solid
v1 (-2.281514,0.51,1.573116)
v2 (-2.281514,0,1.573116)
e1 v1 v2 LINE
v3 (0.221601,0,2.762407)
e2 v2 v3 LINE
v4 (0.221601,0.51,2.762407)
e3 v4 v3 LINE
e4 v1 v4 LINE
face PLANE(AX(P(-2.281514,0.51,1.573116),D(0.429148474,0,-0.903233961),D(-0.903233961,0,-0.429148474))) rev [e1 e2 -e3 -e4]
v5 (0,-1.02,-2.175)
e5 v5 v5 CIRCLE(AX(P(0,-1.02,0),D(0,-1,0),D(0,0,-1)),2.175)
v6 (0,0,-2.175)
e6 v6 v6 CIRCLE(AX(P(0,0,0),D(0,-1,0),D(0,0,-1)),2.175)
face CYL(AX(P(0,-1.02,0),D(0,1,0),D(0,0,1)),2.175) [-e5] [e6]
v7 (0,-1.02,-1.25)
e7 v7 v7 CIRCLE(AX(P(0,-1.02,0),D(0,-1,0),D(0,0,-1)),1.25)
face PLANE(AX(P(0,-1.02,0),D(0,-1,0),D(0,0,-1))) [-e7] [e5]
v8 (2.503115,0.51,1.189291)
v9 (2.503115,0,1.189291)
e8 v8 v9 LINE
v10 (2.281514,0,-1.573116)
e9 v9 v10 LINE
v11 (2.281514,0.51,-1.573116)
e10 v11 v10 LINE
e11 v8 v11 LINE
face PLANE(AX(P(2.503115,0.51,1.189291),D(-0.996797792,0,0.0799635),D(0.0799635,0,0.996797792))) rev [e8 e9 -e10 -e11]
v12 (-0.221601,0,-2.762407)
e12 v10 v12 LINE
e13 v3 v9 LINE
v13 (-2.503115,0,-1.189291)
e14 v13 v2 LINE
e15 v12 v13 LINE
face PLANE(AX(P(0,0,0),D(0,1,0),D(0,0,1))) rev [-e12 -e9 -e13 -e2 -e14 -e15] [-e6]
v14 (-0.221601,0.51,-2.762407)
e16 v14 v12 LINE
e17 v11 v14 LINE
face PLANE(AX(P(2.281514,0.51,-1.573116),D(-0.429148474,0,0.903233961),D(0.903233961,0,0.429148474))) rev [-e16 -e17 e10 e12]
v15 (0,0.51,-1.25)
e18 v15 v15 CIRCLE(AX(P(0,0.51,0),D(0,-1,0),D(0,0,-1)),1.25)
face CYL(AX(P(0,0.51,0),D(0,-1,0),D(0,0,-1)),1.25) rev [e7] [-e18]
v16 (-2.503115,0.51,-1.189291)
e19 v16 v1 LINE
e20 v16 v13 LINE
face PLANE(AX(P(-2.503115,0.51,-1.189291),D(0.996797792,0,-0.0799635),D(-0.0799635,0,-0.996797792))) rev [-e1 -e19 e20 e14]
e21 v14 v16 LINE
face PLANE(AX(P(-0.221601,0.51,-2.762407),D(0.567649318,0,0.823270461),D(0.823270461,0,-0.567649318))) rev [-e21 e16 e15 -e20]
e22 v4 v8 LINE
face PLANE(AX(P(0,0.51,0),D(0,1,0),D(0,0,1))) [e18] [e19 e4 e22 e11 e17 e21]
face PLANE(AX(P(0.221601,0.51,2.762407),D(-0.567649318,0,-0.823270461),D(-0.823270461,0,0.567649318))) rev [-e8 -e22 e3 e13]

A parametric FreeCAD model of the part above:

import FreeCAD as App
import Part
import Sketcher

V = App.Vector
Q = App.Units.Quantity


def add_polygon(sketch, points):
    """Adds a closed chain of lines whose ends are joined by coincident constraints."""
    first, n = sketch.GeometryCount, len(points)
    for a, b in zip(points, points[1:] + points[:1]):
        sketch.addGeometry(Part.LineSegment(App.Vector(*a, 0), App.Vector(*b, 0)), False)
    for i in range(n):
        sketch.addConstraint(Sketcher.Constraint("Coincident", first + i, 2, first + (i + 1) % n, 1))

doc = App.newDocument("Part")
body = doc.addObject("PartDesign::Body", "Body")

sketch1 = body.newObject("Sketcher::SketchObject", "Sketch")
sketch1.AttachmentSupport = (doc.getObject("XZ_Plane"), [""])
sketch1.MapMode = "FlatFace"
add_polygon(sketch1, [(2.5, 1.2), (2.3, -1.6), (-0.2, -2.8), (-2.5, -1.2), (-2.3, 1.6), (0.2, 2.8)])
sketch1.addConstraint([
    Sketcher.Constraint("Symmetric", 0, 2, 3, 2, -1, 1),
    Sketcher.Constraint("Symmetric", 1, 2, 4, 2, -1, 1),
    Sketcher.Constraint("Symmetric", 2, 2, 5, 2, -1, 1),
    Sketcher.Constraint("Equal", 0, 1),
    Sketcher.Constraint("Equal", 1, 2),
    Sketcher.Constraint("DistanceX", 1, 2, -1, 1, Q("0.221601 mm")),
    Sketcher.Constraint("DistanceX", 2, 2, 3, 2, Q("0.221601 mm")),
    Sketcher.Constraint("DistanceY", 2, 2, 4, 2, Q("3.951698 mm")),
    Sketcher.Constraint("Distance", 0, Q("2.771281 mm")),
])
pad1 = body.newObject("PartDesign::Pad", "Pad")
pad1.Profile = sketch1
pad1.Length = 0.51
pad1.Reversed = True

sketch2 = body.newObject("Sketcher::SketchObject", "Sketch001")
sketch2.AttachmentSupport = (doc.getObject("XZ_Plane"), [""])
sketch2.MapMode = "FlatFace"
sketch2.addGeometry(Part.Circle(V(0, 0, 0), V(0, 0, 1), 2.2), False)
sketch2.addConstraint([
    Sketcher.Constraint("Coincident", 0, 3, -1, 1),
    Sketcher.Constraint("Diameter", 0, Q("4.35 mm")),
])
pad2 = body.newObject("PartDesign::Pad", "Pad001")
pad2.Profile = sketch2
pad2.Length = 1.02

sketch3 = body.newObject("Sketcher::SketchObject", "Sketch002")
sketch3.AttachmentSupport = (doc.getObject("XZ_Plane"), [""])
sketch3.MapMode = "FlatFace"
sketch3.AttachmentOffset = App.Placement(V(0, 0, 1.02), App.Rotation())
sketch3.addGeometry(Part.Circle(V(0, 0, 0), V(0, 0, 1), 1.2), False)
sketch3.addConstraint([
    Sketcher.Constraint("Coincident", 0, 3, -1, 1),
    Sketcher.Constraint("Diameter", 0, Q("2.5 mm")),
])
pocket1 = body.newObject("PartDesign::Pocket", "Pocket")
pocket1.Profile = sketch3
pocket1.Type = "ThroughAll"

doc.recompute()
